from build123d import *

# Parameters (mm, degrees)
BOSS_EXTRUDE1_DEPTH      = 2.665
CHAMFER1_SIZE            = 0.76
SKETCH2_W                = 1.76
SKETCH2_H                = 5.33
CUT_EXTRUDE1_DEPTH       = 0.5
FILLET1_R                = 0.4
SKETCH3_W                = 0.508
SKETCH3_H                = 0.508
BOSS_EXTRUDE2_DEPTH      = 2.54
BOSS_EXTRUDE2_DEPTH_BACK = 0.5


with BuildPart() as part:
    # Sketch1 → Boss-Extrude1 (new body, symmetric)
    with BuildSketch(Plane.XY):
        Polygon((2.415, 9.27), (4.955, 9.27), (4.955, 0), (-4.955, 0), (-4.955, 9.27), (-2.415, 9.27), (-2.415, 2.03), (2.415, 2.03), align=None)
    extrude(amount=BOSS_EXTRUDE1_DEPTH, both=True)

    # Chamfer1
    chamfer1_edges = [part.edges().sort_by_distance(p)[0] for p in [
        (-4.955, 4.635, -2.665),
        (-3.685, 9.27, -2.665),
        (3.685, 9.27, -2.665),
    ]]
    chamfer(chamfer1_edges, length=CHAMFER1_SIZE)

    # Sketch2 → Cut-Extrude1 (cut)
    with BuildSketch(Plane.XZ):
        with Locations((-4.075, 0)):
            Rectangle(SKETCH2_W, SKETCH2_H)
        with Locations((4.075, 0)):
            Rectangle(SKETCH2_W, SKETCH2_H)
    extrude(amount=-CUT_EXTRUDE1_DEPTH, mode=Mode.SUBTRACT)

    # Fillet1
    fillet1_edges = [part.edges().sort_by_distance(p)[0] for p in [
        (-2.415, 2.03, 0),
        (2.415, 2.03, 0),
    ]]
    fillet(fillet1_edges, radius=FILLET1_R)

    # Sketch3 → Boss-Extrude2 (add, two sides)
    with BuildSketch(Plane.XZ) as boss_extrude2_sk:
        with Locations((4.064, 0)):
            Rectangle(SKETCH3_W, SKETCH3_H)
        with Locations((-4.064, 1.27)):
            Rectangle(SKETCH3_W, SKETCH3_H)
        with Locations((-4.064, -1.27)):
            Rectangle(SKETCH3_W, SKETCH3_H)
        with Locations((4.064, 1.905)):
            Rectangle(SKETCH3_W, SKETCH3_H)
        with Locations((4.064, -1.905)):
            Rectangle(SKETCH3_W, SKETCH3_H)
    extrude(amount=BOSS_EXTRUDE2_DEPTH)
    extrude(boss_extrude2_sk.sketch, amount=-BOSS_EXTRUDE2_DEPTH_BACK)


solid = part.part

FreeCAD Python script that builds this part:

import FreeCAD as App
import Part
import Sketcher


def edges_at(feature, points):
    """Names of the edges that pass closest to the given points."""
    edges = feature.Shape.Edges
    near = lambda p: min(range(len(edges)), key=lambda i: edges[i].distToShape(Part.Vertex(*p))[0])
    return sorted({f"Edge{near(p) + 1}" for p in points})


def add_polygon(sketch, points):
    """Adds a closed chain of lines whose ends are joined by coincident constraints."""
    first, n = sketch.GeometryCount, len(points)
    for a, b in zip(points, points[1:] + points[:1]):
        sketch.addGeometry(Part.LineSegment(App.Vector(*a, 0), App.Vector(*b, 0)), False)
    for i in range(n):
        sketch.addConstraint(Sketcher.Constraint("Coincident", first + i, 2, first + (i + 1) % n, 1))

doc = App.newDocument("Part")
body = doc.addObject("PartDesign::Body", "Body")

# Sketch on XY plane
sketch1 = body.newObject("Sketcher::SketchObject", "Sketch")
sketch1.AttachmentSupport = (doc.getObject("XY_Plane"), [""])
sketch1.MapMode = "FlatFace"
add_polygon(sketch1, [(5, 9.3), (2.4, 9.3), (2.4, 2), (-2.4, 2), (-2.4, 9.3), (-5, 9.3), (-5, 0), (5, 0)])  # lines 0-7
sketch1.addConstraint(Sketcher.Constraint("Horizontal", 0))
sketch1.addConstraint(Sketcher.Constraint("Vertical", 1))
sketch1.addConstraint(Sketcher.Constraint("Horizontal", 2))
sketch1.addConstraint(Sketcher.Constraint("Vertical", 3))
sketch1.addConstraint(Sketcher.Constraint("Horizontal", 4))
sketch1.addConstraint(Sketcher.Constraint("Vertical", 5))
sketch1.addConstraint(Sketcher.Constraint("Horizontal", 6))
sketch1.addConstraint(Sketcher.Constraint("Vertical", 7))
sketch1.addConstraint(Sketcher.Constraint("Symmetric", 5, 2, 6, 2, -1, 1))
sketch1.addConstraint(Sketcher.Constraint("Symmetric", 0, 2, 3, 2, -2))
sketch1.addConstraint(Sketcher.Constraint("DistanceX", 0, 2, 0, 1, 2.54))
sketch1.addConstraint(Sketcher.Constraint("DistanceX", 2, 2, 2, 1, 4.83))
sketch1.addConstraint(Sketcher.Constraint("DistanceY", 1, 2, 1, 1, 7.24))
sketch1.addConstraint(Sketcher.Constraint("DistanceY", 5, 2, 5, 1, 9.27))
pad1 = body.newObject("PartDesign::Pad", "Pad")
pad1.Profile = sketch1
pad1.Length = 5.33
pad1.Midplane = True
doc.recompute()

chamfer = body.newObject("PartDesign::Chamfer", "Chamfer")
chamfer.Base = (pad1, edges_at(pad1, [(-4.955, 4.635, -2.665), (-3.685, 9.27, -2.665), (3.685, 9.27, -2.665)]))
chamfer.Size = 0.76

# Sketch on XZ plane
sketch2 = body.newObject("Sketcher::SketchObject", "Sketch001")
sketch2.AttachmentSupport = (doc.getObject("XZ_Plane"), [""])
sketch2.MapMode = "FlatFace"
add_polygon(sketch2, [(-5, 2.7), (-5, -2.7), (-3.2, -2.7), (-3.2, 2.7)])  # lines 0-3
add_polygon(sketch2, [(3.2, 2.7), (3.2, -2.7), (5, -2.7), (5, 2.7)])  # lines 4-7
sketch2.addConstraint(Sketcher.Constraint("Vertical", 0))
sketch2.addConstraint(Sketcher.Constraint("Horizontal", 1))
sketch2.addConstraint(Sketcher.Constraint("Vertical", 2))
sketch2.addConstraint(Sketcher.Constraint("Horizontal", 3))
sketch2.addConstraint(Sketcher.Constraint("Vertical", 4))
sketch2.addConstraint(Sketcher.Constraint("Horizontal", 5))
sketch2.addConstraint(Sketcher.Constraint("Vertical", 6))
sketch2.addConstraint(Sketcher.Constraint("Horizontal", 7))
sketch2.addConstraint(Sketcher.Constraint("Symmetric", 2, 2, 4, 2, -1, 1))
sketch2.addConstraint(Sketcher.Constraint("Symmetric", 0, 2, 6, 2, -1, 1))
sketch2.addConstraint(Sketcher.Constraint("Horizontal", 1, 2, 4, 2))
sketch2.addConstraint(Sketcher.Constraint("DistanceX", 1, 1, 1, 2, 1.76))
sketch2.addConstraint(Sketcher.Constraint("DistanceY", 0, 2, 0, 1, 5.33))
sketch2.addConstraint(Sketcher.Constraint("DistanceX", 1, 2, 4, 2, 6.39))
pocket1 = body.newObject("PartDesign::Pocket", "Pocket")
pocket1.Profile = sketch2
pocket1.Length = 0.5
doc.recompute()

fillet = body.newObject("PartDesign::Fillet", "Fillet")
fillet.Base = (pocket1, edges_at(pocket1, [(-2.415, 2.03, 0), (2.415, 2.03, 0)]))
fillet.Radius = 0.4

# Sketch on XZ plane
sketch3 = body.newObject("Sketcher::SketchObject", "Sketch002")
sketch3.AttachmentSupport = (doc.getObject("XZ_Plane"), [""])
sketch3.MapMode = "FlatFace"
add_polygon(sketch3, [(3.8, 0.3), (3.8, -0.3), (4.3, -0.3), (4.3, 0.3)])  # lines 0-3
add_polygon(sketch3, [(-4.3, 1.5), (-4.3, 1), (-3.8, 1), (-3.8, 1.5)])  # lines 4-7
add_polygon(sketch3, [(-4.3, -1), (-4.3, -1.5), (-3.8, -1.5), (-3.8, -1)])  # lines 8-11
add_polygon(sketch3, [(3.8, 2.2), (3.8, 1.7), (4.3, 1.7), (4.3, 2.2)])  # lines 12-15
add_polygon(sketch3, [(3.8, -1.7), (3.8, -2.2), (4.3, -2.2), (4.3, -1.7)])  # lines 16-19
sketch3.addConstraint(Sketcher.Constraint("Vertical", 0))
sketch3.addConstraint(Sketcher.Constraint("Horizontal", 1))
sketch3.addConstraint(Sketcher.Constraint("Vertical", 2))
sketch3.addConstraint(Sketcher.Constraint("Horizontal", 3))
sketch3.addConstraint(Sketcher.Constraint("Vertical", 4))
sketch3.addConstraint(Sketcher.Constraint("Horizontal", 5))
sketch3.addConstraint(Sketcher.Constraint("Vertical", 6))
sketch3.addConstraint(Sketcher.Constraint("Horizontal", 7))
sketch3.addConstraint(Sketcher.Constraint("Vertical", 8))
sketch3.addConstraint(Sketcher.Constraint("Horizontal", 9))
sketch3.addConstraint(Sketcher.Constraint("Vertical", 10))
sketch3.addConstraint(Sketcher.Constraint("Horizontal", 11))
sketch3.addConstraint(Sketcher.Constraint("Vertical", 12))
sketch3.addConstraint(Sketcher.Constraint("Horizontal", 13))
sketch3.addConstraint(Sketcher.Constraint("Vertical", 14))
sketch3.addConstraint(Sketcher.Constraint("Horizontal", 15))
sketch3.addConstraint(Sketcher.Constraint("Vertical", 16))
sketch3.addConstraint(Sketcher.Constraint("Horizontal", 17))
sketch3.addConstraint(Sketcher.Constraint("Vertical", 18))
sketch3.addConstraint(Sketcher.Constraint("Horizontal", 19))
sketch3.addConstraint(Sketcher.Constraint("Symmetric", 7, 2, 8, 2, -1))
sketch3.addConstraint(Sketcher.Constraint("Symmetric", 5, 2, 10, 2, -1))
sketch3.addConstraint(Sketcher.Constraint("Symmetric", 15, 2, 16, 2, -1))
sketch3.addConstraint(Sketcher.Constraint("Symmetric", 13, 2, 18, 2, -1))
sketch3.addConstraint(Sketcher.Constraint("Vertical", 3, 2, 12, 2))
sketch3.addConstraint(Sketcher.Constraint("Vertical", 2, 2, 13, 2))
sketch3.addConstraint(Sketcher.Constraint("Equal", 3, 5))
sketch3.addConstraint(Sketcher.Constraint("Equal", 19, 0))
sketch3.addConstraint(Sketcher.Constraint("Equal", 2, 4))
sketch3.addConstraint(Sketcher.Constraint("Equal", 10, 12))
sketch3.addConstraint(Sketcher.Constraint("DistanceX", 1, 1, 1, 2, 0.508))
sketch3.addConstraint(Sketcher.Constraint("DistanceX", -1, 1, 0, 2, 3.81))
sketch3.addConstraint(Sketcher.Constraint("DistanceX", 5, 2, -1, 1, 3.81))
sketch3.addConstraint(Sketcher.Constraint("DistanceY", 0, 2, 4, 2, 1.27))
sketch3.addConstraint(Sketcher.Constraint("DistanceY", 8, 2, 4, 2, 2.54))
sketch3.addConstraint(Sketcher.Constraint("DistanceY", 16, 2, 12, 2, 3.81))
pad2 = body.newObject("PartDesign::Pad", "Pad001")
pad2.Profile = sketch3
pad2.Type = "TwoLengths"
pad2.Length = 2.54
pad2.Length2 = 0.5

doc.recompute()
